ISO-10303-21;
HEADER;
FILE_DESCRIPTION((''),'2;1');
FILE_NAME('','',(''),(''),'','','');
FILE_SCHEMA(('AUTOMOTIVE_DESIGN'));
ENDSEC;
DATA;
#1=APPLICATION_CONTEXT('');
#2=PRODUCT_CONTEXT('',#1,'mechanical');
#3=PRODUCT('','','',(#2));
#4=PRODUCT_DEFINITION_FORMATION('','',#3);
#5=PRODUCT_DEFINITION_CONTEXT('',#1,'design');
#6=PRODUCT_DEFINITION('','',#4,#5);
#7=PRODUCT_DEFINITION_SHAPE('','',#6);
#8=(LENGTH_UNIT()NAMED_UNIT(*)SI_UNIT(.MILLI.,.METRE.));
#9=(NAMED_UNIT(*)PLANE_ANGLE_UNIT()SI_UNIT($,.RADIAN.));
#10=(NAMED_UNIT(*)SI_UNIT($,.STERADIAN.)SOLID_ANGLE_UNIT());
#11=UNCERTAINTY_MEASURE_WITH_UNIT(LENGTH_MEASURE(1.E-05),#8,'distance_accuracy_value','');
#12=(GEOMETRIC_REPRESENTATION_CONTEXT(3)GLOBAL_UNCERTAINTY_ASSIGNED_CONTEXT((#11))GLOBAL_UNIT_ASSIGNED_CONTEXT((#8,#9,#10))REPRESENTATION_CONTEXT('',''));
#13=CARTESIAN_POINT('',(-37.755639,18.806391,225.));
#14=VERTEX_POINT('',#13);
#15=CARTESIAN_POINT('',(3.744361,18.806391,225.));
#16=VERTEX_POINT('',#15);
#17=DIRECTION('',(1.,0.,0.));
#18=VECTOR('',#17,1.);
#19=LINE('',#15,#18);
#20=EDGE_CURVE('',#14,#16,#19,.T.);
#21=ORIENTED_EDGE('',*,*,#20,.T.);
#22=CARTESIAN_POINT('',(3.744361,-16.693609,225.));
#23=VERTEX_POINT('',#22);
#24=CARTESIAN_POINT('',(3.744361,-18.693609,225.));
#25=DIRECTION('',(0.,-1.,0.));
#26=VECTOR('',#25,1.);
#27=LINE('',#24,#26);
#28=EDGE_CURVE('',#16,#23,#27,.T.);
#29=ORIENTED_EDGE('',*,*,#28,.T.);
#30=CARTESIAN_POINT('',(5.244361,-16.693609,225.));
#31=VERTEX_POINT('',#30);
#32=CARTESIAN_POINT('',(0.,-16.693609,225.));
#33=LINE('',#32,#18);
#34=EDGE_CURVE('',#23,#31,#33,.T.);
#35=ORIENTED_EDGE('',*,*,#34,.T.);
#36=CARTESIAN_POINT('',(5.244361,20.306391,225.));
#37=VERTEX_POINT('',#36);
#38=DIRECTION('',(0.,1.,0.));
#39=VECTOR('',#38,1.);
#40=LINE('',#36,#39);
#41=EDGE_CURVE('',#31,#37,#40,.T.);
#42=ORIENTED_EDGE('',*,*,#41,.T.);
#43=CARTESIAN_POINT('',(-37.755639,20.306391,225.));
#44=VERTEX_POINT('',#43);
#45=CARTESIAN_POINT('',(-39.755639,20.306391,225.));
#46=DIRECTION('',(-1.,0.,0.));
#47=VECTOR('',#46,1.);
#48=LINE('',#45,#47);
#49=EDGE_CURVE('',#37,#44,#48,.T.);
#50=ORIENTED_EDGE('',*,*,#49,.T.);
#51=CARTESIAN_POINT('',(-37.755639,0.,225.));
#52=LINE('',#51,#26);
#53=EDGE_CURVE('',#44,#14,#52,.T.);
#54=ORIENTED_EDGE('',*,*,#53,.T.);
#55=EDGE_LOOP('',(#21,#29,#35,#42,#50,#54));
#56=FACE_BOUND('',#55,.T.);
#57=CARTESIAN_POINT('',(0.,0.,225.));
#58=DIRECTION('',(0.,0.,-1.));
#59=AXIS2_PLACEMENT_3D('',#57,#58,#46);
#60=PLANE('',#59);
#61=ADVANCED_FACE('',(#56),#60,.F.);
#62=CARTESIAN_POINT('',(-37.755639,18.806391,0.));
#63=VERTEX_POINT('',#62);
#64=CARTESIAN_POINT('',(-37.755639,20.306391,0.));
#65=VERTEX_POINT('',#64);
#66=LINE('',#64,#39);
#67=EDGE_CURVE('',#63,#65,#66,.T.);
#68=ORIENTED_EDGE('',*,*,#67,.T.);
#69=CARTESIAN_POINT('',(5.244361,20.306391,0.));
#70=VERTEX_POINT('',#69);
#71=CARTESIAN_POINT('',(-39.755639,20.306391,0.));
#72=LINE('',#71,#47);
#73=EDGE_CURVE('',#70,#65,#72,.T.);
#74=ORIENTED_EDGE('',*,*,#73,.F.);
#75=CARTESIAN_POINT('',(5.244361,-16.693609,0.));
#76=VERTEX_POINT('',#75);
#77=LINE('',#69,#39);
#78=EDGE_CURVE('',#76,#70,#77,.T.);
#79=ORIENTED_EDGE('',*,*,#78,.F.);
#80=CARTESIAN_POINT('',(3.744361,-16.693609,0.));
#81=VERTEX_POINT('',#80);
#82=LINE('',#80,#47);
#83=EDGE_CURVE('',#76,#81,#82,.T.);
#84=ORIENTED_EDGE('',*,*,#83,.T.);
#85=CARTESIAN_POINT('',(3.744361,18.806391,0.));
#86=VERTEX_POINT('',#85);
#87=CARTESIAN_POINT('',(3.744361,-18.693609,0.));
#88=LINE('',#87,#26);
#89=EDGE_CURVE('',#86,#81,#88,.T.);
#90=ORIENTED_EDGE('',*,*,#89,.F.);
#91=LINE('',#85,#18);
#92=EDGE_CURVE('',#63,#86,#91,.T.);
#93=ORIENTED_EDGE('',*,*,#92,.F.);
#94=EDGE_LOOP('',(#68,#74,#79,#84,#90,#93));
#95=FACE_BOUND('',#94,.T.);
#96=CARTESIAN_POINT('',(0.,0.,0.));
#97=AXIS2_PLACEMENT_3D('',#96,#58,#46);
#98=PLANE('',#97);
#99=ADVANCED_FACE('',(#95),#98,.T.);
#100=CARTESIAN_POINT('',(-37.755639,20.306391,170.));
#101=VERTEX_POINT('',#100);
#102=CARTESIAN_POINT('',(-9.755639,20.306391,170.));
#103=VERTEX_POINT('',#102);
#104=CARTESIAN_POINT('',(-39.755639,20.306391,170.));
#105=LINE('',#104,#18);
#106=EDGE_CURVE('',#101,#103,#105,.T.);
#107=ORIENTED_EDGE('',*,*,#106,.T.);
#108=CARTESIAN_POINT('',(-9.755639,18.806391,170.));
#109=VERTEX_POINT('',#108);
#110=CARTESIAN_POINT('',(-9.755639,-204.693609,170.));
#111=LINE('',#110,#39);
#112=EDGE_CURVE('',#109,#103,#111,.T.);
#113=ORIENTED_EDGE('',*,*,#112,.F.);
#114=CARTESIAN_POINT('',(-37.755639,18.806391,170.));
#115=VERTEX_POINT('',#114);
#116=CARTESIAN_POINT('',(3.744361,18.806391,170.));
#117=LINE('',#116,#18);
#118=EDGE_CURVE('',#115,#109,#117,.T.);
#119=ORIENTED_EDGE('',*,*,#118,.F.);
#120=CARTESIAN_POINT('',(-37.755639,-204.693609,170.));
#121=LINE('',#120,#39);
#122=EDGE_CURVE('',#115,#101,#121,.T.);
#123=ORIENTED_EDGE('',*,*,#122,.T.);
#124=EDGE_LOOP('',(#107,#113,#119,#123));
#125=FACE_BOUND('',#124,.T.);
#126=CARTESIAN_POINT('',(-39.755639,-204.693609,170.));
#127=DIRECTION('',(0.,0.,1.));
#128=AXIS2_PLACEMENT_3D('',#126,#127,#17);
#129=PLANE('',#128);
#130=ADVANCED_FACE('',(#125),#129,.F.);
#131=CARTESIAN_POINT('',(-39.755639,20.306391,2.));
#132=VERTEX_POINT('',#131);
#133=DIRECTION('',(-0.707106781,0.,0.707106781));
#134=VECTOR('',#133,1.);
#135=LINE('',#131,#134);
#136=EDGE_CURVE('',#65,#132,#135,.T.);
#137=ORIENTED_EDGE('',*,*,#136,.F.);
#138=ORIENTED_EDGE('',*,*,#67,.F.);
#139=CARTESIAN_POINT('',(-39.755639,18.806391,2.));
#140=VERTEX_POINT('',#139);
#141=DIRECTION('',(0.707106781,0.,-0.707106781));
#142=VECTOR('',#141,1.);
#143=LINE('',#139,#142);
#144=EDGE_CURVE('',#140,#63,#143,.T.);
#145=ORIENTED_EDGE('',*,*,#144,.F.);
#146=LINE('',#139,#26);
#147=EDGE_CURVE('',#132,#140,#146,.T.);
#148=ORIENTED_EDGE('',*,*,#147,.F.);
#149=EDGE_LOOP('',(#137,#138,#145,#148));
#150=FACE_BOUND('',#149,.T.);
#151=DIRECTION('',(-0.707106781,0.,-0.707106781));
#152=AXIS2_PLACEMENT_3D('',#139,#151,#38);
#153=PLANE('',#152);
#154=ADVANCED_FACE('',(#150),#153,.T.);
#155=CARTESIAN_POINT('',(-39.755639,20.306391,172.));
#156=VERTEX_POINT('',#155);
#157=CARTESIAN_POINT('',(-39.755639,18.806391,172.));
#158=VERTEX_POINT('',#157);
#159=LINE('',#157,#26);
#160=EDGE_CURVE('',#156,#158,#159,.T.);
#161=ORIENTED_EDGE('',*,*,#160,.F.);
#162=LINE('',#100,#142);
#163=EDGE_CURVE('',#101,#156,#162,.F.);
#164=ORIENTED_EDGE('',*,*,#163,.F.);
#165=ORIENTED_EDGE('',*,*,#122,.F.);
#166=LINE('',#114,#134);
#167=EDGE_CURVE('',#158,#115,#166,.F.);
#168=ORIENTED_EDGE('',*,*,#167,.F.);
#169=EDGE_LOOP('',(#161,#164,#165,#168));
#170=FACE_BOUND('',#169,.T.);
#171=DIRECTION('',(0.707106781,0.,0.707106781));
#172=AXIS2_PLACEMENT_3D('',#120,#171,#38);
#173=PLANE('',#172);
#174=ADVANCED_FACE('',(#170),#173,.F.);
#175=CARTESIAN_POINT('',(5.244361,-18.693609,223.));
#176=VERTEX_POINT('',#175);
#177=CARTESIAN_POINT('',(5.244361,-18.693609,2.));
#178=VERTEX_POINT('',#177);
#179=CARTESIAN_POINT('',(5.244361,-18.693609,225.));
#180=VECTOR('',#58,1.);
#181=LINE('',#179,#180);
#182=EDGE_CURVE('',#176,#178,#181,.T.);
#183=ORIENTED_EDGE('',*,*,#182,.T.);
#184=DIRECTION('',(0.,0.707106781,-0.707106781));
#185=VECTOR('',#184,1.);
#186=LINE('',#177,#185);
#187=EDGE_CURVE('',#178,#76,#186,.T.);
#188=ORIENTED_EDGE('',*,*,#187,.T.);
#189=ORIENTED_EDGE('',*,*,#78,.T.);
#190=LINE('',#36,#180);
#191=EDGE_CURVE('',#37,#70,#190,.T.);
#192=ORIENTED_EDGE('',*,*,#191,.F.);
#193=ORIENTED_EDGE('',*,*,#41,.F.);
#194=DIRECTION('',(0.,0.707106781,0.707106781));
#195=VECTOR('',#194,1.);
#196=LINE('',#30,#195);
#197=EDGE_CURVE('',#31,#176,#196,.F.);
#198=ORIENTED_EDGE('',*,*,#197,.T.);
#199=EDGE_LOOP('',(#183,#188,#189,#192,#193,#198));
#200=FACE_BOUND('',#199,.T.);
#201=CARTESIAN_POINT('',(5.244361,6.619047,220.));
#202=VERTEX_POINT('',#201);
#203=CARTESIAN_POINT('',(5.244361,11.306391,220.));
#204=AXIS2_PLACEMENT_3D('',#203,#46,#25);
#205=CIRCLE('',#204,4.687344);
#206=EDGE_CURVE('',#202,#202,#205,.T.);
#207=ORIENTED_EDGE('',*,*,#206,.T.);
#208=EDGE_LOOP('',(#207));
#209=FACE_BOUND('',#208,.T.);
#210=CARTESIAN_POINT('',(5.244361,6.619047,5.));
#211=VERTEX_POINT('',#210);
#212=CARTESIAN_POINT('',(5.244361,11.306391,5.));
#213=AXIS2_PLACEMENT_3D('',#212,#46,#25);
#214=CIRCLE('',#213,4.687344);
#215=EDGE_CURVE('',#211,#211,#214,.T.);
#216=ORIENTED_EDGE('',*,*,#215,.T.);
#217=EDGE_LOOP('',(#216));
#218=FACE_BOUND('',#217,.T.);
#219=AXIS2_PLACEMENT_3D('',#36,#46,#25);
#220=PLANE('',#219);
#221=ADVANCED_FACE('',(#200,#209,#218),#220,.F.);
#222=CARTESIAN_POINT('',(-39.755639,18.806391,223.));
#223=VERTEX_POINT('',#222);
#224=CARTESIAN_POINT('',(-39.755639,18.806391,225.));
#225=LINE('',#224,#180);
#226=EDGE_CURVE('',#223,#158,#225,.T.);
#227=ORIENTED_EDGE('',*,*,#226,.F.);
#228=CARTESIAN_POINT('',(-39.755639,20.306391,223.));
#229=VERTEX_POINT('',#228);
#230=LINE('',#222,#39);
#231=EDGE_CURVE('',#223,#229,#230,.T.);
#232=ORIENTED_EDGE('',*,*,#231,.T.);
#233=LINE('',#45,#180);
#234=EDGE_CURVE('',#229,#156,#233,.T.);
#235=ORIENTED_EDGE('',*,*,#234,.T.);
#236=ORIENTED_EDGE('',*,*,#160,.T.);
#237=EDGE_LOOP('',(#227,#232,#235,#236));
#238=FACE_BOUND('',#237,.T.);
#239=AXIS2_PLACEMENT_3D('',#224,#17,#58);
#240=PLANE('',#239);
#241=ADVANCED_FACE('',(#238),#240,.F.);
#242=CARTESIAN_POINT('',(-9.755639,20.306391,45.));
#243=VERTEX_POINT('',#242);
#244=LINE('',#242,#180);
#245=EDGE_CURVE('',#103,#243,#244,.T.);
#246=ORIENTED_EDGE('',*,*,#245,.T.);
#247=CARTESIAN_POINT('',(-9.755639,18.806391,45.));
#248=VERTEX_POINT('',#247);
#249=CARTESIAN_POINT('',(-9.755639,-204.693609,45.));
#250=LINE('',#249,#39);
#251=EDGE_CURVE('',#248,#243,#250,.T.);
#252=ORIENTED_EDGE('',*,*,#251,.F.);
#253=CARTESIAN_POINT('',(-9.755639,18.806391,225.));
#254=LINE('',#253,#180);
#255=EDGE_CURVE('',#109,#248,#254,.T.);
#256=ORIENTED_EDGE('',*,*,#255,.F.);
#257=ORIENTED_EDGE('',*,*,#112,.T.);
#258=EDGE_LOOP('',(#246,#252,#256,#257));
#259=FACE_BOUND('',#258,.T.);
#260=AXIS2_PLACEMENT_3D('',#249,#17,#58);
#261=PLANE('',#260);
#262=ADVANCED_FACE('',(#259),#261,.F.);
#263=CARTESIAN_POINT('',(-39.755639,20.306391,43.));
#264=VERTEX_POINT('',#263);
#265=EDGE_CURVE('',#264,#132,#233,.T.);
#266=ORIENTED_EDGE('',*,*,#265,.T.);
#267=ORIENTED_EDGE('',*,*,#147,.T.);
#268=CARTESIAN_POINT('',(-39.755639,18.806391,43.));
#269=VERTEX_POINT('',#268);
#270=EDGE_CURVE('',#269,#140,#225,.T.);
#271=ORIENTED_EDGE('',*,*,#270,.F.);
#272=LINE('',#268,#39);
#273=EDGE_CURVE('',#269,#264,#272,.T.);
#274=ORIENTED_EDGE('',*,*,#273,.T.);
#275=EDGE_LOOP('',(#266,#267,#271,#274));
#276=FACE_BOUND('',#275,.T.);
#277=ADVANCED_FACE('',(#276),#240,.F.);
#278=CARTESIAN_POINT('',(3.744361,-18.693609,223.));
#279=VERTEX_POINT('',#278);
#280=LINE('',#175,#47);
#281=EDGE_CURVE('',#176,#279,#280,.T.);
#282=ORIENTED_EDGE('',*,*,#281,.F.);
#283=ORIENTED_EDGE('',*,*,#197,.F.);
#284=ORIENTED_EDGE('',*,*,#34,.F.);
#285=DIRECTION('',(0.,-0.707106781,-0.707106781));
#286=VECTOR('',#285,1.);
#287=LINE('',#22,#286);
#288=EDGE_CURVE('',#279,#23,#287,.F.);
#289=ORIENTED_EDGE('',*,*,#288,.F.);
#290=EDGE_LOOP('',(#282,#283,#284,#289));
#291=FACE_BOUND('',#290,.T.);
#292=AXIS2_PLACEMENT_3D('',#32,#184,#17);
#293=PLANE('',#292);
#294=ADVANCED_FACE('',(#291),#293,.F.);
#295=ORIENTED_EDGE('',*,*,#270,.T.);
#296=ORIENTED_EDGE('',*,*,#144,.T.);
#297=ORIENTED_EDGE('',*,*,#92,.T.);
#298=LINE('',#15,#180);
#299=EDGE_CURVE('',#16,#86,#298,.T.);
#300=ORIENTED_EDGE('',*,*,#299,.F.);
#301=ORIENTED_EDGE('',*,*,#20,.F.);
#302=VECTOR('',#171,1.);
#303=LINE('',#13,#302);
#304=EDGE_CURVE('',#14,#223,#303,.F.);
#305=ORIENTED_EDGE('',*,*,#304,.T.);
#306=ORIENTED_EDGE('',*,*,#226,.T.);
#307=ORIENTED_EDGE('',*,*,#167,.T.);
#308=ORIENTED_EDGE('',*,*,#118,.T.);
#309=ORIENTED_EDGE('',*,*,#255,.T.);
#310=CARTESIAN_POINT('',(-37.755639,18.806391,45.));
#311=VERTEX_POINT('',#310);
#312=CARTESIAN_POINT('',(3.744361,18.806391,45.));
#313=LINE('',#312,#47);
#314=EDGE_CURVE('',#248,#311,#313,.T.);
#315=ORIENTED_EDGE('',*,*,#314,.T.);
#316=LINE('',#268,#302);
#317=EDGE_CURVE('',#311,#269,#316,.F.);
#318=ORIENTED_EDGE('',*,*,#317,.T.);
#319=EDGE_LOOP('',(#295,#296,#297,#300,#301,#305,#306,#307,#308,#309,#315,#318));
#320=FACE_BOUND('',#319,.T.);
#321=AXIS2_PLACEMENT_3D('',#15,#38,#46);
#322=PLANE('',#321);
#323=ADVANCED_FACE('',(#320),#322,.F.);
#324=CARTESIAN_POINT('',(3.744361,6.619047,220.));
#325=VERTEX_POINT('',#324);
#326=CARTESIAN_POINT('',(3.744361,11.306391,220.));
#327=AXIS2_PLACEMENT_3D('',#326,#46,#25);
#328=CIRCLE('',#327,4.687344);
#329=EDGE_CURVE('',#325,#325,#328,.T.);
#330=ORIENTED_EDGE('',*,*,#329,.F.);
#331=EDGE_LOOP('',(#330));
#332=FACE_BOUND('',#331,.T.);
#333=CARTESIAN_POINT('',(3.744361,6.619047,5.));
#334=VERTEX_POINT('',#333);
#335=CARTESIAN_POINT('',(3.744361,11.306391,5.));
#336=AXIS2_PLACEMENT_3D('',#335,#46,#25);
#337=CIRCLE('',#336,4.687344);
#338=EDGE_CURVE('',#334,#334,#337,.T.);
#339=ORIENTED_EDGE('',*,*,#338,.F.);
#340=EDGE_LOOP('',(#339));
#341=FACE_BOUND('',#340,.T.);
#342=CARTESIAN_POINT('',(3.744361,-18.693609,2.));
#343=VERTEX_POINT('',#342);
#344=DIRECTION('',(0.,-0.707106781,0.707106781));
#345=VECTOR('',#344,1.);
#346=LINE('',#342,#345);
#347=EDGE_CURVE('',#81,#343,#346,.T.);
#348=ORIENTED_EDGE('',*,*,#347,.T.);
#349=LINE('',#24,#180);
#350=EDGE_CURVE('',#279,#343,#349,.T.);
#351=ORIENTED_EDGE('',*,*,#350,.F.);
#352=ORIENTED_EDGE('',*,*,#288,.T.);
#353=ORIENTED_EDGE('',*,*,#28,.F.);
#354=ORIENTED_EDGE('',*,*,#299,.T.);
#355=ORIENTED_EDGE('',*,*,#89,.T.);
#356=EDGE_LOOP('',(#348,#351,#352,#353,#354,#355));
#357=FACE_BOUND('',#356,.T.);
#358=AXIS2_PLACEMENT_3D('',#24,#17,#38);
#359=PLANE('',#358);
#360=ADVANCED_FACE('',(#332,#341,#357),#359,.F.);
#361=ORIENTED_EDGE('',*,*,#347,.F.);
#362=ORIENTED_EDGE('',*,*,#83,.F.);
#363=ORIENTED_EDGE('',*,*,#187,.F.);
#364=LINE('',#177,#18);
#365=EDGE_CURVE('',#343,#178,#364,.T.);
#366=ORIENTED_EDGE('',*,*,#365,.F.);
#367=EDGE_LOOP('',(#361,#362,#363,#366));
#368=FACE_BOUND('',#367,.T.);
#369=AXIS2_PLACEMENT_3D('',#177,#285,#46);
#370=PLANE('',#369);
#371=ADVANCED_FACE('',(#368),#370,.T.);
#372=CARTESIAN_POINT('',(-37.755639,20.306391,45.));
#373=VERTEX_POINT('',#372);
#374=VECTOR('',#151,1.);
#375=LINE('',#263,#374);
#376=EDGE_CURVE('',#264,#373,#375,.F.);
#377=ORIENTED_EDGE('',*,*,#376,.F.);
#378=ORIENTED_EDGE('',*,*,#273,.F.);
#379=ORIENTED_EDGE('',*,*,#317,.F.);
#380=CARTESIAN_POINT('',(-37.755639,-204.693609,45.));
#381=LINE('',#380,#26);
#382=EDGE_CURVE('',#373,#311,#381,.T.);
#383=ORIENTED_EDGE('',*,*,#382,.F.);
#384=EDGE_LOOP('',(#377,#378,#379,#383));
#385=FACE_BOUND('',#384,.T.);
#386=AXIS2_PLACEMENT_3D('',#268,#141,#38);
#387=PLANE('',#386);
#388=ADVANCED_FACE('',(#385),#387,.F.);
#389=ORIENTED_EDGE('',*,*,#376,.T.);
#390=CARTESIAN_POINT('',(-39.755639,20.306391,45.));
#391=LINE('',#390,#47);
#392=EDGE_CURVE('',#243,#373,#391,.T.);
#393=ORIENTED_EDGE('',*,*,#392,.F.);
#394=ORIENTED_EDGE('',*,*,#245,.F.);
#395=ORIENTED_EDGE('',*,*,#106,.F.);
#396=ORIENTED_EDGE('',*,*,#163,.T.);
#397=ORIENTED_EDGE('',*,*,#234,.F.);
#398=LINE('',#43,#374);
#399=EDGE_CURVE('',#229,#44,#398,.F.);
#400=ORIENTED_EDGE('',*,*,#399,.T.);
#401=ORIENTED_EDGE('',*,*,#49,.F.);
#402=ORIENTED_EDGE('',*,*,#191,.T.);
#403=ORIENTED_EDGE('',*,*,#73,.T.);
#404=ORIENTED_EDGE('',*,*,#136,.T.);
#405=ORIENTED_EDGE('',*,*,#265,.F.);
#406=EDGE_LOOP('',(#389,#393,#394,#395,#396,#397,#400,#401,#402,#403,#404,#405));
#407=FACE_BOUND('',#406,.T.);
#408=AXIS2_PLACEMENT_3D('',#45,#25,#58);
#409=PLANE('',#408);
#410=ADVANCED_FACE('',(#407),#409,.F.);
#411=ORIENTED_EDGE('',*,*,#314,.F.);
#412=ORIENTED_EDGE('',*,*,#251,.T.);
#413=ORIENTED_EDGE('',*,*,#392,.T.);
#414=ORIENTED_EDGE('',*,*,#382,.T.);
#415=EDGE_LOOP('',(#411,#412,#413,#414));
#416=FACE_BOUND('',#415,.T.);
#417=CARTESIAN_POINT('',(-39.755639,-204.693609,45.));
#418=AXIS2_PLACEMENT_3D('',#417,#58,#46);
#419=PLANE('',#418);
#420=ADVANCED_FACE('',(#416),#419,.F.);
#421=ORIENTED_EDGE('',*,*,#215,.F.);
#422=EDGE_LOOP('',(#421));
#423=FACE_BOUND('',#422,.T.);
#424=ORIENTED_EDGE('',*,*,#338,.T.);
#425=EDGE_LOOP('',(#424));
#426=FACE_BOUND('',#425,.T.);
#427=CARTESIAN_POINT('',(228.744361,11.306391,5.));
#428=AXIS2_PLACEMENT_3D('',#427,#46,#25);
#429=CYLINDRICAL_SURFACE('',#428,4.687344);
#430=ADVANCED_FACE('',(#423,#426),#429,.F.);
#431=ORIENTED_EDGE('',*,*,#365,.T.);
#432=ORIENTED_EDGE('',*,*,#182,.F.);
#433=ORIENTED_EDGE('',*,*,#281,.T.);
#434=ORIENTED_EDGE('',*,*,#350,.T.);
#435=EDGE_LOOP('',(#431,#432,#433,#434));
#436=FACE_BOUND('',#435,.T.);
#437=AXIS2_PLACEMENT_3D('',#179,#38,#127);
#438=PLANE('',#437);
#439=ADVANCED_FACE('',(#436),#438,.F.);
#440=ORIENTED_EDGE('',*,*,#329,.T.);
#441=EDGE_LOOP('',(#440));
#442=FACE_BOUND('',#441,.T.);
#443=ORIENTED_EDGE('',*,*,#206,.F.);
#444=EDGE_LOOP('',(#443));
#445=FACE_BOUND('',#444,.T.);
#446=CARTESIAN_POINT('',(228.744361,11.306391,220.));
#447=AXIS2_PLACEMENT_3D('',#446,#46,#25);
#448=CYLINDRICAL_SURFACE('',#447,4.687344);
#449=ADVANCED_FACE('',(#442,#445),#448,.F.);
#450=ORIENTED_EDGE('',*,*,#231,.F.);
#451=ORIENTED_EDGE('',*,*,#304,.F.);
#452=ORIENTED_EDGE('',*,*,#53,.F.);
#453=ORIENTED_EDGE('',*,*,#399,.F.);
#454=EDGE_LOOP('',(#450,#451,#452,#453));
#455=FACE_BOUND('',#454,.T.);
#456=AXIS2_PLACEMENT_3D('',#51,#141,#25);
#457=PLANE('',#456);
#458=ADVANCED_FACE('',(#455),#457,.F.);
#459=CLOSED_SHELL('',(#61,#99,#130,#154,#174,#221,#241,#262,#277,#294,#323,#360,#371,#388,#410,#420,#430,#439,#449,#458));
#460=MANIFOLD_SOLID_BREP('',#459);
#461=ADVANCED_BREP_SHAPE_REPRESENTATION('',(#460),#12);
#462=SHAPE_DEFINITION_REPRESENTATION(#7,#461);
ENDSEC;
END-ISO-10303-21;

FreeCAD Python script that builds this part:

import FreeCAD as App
import Part
import Sketcher

V = App.Vector
Q = App.Units.Quantity


def edges_at(feature, points):
    """Names of the edges that pass closest to the given points."""
    edges = feature.Shape.Edges
    near = lambda p: min(range(len(edges)), key=lambda i: edges[i].distToShape(Part.Vertex(*p))[0])
    return sorted({f"Edge{near(p) + 1}" for p in points})


def add_polygon(sketch, points):
    """Adds a closed chain of lines whose ends are joined by coincident constraints."""
    first, n = sketch.GeometryCount, len(points)
    for a, b in zip(points, points[1:] + points[:1]):
        sketch.addGeometry(Part.LineSegment(App.Vector(*a, 0), App.Vector(*b, 0)), False)
    for i in range(n):
        sketch.addConstraint(Sketcher.Constraint("Coincident", first + i, 2, first + (i + 1) % n, 1))

doc = App.newDocument("Part")
body = doc.addObject("PartDesign::Body", "Body")

# Sketch on XY plane
sketch1 = body.newObject("Sketcher::SketchObject", "Sketch")
sketch1.AttachmentSupport = (doc.getObject("XY_Plane"), [""])
sketch1.MapMode = "FlatFace"
add_polygon(sketch1, [(5.244361, 20.306391), (-39.755639, 20.306391), (-39.755639, 18.806391), (3.744361, 18.806391), (3.744361, -18.693609), (5.244361, -18.693609)])  # lines 0-5
sketch1.addConstraint(Sketcher.Constraint("Horizontal", 0))
sketch1.addConstraint(Sketcher.Constraint("Vertical", 1))
sketch1.addConstraint(Sketcher.Constraint("Horizontal", 2))
sketch1.addConstraint(Sketcher.Constraint("Vertical", 3))
sketch1.addConstraint(Sketcher.Constraint("Horizontal", 4))
sketch1.addConstraint(Sketcher.Constraint("Vertical", 5))
sketch1.addConstraint(Sketcher.Constraint("Equal", 4, 1))
sketch1.addConstraint(Sketcher.Constraint("DistanceX", 0, 2, 0, 1, Q("45 mm")))
sketch1.addConstraint(Sketcher.Constraint("DistanceY", 5, 1, 5, 2, Q("39 mm")))
sketch1.addConstraint(Sketcher.Constraint("DistanceX", 2, 1, 2, 2, Q("43.5 mm")))
sketch1.addConstraint(Sketcher.Constraint("DistanceX", 0, 2, -1, 1, Q("39.755639 mm")))
sketch1.addConstraint(Sketcher.Constraint("DistanceY", -1, 1, 0, 2, Q("20.306391 mm")))
pad1 = body.newObject("PartDesign::Pad", "Pad")
pad1.Profile = sketch1
pad1.Length = 225

# Sketch on XZ plane
sketch2 = body.newObject("Sketcher::SketchObject", "Sketch001")
sketch2.AttachmentSupport = (doc.getObject("XZ_Plane"), [""])
sketch2.MapMode = "FlatFace"
sketch2.AttachmentOffset = App.Placement(V(0, 0, -20.306391), App.Rotation())
add_polygon(sketch2, [(-39.755639, 45), (-39.755639, 170), (-9.755639, 170), (-9.755639, 45)])  # lines 0-3
sketch2.addConstraint(Sketcher.Constraint("Vertical", 0))
sketch2.addConstraint(Sketcher.Constraint("Horizontal", 1))
sketch2.addConstraint(Sketcher.Constraint("Vertical", 2))
sketch2.addConstraint(Sketcher.Constraint("Horizontal", 3))
sketch2.addConstraint(Sketcher.Constraint("DistanceX", 1, 1, 1, 2, Q("30 mm")))
sketch2.addConstraint(Sketcher.Constraint("DistanceY", 0, 1, 0, 2, Q("125 mm")))
sketch2.addConstraint(Sketcher.Constraint("DistanceY", -1, 1, 0, 2, Q("170 mm")))
sketch2.addConstraint(Sketcher.Constraint("DistanceX", 0, 2, -1, 1, Q("39.755639 mm")))
pocket1 = body.newObject("PartDesign::Pocket", "Pocket")
pocket1.Profile = sketch2
pocket1.Length = 225
pocket1.Reversed = True

# Sketch on YZ plane
sketch3 = body.newObject("Sketcher::SketchObject", "Sketch002")
sketch3.AttachmentSupport = (doc.getObject("YZ_Plane"), [""])
sketch3.MapMode = "FlatFace"
sketch3.AttachmentOffset = App.Placement(V(0, 0, 3.744361), App.Rotation())
sketch3.addGeometry(Part.Circle(V(11.306391, 5, 0), V(0, 0, 1), 4.687344), False)
sketch3.addGeometry(Part.Circle(V(11.306391, 220, 0), V(0, 0, 1), 4.687344), False)
sketch3.addConstraint(Sketcher.Constraint("Equal", 0, 1))
sketch3.addConstraint(Sketcher.Constraint("Vertical", 0, 3, 1, 3))
sketch3.addConstraint(Sketcher.Constraint("DistanceY", -1, 1, 0, 3, Q("5 mm")))
sketch3.addConstraint(Sketcher.Constraint("DistanceY", -1, 1, 1, 3, Q("220 mm")))
sketch3.addConstraint(Sketcher.Constraint("Diameter", 0, Q("9.374687 mm")))
sketch3.addConstraint(Sketcher.Constraint("DistanceX", -1, 1, 0, 3, Q("11.306391 mm")))
pocket2 = body.newObject("PartDesign::Pocket", "Pocket001")
pocket2.Profile = sketch3
pocket2.Length = 225
pocket2.Reversed = True
doc.recompute()

chamfer = body.newObject("PartDesign::Chamfer", "Chamfer")
chamfer.Base = (pocket2, edges_at(pocket2, [
    (4.494, -18.694, 225),
    (-39.756, 19.556, 170),
    (-39.756, 19.556, 45),
    (-39.756, 19.556, 225),
    (4.494, -18.694, 0),
    (-39.756, 19.556, 0),
]))
chamfer.Size = 2

doc.recompute()
